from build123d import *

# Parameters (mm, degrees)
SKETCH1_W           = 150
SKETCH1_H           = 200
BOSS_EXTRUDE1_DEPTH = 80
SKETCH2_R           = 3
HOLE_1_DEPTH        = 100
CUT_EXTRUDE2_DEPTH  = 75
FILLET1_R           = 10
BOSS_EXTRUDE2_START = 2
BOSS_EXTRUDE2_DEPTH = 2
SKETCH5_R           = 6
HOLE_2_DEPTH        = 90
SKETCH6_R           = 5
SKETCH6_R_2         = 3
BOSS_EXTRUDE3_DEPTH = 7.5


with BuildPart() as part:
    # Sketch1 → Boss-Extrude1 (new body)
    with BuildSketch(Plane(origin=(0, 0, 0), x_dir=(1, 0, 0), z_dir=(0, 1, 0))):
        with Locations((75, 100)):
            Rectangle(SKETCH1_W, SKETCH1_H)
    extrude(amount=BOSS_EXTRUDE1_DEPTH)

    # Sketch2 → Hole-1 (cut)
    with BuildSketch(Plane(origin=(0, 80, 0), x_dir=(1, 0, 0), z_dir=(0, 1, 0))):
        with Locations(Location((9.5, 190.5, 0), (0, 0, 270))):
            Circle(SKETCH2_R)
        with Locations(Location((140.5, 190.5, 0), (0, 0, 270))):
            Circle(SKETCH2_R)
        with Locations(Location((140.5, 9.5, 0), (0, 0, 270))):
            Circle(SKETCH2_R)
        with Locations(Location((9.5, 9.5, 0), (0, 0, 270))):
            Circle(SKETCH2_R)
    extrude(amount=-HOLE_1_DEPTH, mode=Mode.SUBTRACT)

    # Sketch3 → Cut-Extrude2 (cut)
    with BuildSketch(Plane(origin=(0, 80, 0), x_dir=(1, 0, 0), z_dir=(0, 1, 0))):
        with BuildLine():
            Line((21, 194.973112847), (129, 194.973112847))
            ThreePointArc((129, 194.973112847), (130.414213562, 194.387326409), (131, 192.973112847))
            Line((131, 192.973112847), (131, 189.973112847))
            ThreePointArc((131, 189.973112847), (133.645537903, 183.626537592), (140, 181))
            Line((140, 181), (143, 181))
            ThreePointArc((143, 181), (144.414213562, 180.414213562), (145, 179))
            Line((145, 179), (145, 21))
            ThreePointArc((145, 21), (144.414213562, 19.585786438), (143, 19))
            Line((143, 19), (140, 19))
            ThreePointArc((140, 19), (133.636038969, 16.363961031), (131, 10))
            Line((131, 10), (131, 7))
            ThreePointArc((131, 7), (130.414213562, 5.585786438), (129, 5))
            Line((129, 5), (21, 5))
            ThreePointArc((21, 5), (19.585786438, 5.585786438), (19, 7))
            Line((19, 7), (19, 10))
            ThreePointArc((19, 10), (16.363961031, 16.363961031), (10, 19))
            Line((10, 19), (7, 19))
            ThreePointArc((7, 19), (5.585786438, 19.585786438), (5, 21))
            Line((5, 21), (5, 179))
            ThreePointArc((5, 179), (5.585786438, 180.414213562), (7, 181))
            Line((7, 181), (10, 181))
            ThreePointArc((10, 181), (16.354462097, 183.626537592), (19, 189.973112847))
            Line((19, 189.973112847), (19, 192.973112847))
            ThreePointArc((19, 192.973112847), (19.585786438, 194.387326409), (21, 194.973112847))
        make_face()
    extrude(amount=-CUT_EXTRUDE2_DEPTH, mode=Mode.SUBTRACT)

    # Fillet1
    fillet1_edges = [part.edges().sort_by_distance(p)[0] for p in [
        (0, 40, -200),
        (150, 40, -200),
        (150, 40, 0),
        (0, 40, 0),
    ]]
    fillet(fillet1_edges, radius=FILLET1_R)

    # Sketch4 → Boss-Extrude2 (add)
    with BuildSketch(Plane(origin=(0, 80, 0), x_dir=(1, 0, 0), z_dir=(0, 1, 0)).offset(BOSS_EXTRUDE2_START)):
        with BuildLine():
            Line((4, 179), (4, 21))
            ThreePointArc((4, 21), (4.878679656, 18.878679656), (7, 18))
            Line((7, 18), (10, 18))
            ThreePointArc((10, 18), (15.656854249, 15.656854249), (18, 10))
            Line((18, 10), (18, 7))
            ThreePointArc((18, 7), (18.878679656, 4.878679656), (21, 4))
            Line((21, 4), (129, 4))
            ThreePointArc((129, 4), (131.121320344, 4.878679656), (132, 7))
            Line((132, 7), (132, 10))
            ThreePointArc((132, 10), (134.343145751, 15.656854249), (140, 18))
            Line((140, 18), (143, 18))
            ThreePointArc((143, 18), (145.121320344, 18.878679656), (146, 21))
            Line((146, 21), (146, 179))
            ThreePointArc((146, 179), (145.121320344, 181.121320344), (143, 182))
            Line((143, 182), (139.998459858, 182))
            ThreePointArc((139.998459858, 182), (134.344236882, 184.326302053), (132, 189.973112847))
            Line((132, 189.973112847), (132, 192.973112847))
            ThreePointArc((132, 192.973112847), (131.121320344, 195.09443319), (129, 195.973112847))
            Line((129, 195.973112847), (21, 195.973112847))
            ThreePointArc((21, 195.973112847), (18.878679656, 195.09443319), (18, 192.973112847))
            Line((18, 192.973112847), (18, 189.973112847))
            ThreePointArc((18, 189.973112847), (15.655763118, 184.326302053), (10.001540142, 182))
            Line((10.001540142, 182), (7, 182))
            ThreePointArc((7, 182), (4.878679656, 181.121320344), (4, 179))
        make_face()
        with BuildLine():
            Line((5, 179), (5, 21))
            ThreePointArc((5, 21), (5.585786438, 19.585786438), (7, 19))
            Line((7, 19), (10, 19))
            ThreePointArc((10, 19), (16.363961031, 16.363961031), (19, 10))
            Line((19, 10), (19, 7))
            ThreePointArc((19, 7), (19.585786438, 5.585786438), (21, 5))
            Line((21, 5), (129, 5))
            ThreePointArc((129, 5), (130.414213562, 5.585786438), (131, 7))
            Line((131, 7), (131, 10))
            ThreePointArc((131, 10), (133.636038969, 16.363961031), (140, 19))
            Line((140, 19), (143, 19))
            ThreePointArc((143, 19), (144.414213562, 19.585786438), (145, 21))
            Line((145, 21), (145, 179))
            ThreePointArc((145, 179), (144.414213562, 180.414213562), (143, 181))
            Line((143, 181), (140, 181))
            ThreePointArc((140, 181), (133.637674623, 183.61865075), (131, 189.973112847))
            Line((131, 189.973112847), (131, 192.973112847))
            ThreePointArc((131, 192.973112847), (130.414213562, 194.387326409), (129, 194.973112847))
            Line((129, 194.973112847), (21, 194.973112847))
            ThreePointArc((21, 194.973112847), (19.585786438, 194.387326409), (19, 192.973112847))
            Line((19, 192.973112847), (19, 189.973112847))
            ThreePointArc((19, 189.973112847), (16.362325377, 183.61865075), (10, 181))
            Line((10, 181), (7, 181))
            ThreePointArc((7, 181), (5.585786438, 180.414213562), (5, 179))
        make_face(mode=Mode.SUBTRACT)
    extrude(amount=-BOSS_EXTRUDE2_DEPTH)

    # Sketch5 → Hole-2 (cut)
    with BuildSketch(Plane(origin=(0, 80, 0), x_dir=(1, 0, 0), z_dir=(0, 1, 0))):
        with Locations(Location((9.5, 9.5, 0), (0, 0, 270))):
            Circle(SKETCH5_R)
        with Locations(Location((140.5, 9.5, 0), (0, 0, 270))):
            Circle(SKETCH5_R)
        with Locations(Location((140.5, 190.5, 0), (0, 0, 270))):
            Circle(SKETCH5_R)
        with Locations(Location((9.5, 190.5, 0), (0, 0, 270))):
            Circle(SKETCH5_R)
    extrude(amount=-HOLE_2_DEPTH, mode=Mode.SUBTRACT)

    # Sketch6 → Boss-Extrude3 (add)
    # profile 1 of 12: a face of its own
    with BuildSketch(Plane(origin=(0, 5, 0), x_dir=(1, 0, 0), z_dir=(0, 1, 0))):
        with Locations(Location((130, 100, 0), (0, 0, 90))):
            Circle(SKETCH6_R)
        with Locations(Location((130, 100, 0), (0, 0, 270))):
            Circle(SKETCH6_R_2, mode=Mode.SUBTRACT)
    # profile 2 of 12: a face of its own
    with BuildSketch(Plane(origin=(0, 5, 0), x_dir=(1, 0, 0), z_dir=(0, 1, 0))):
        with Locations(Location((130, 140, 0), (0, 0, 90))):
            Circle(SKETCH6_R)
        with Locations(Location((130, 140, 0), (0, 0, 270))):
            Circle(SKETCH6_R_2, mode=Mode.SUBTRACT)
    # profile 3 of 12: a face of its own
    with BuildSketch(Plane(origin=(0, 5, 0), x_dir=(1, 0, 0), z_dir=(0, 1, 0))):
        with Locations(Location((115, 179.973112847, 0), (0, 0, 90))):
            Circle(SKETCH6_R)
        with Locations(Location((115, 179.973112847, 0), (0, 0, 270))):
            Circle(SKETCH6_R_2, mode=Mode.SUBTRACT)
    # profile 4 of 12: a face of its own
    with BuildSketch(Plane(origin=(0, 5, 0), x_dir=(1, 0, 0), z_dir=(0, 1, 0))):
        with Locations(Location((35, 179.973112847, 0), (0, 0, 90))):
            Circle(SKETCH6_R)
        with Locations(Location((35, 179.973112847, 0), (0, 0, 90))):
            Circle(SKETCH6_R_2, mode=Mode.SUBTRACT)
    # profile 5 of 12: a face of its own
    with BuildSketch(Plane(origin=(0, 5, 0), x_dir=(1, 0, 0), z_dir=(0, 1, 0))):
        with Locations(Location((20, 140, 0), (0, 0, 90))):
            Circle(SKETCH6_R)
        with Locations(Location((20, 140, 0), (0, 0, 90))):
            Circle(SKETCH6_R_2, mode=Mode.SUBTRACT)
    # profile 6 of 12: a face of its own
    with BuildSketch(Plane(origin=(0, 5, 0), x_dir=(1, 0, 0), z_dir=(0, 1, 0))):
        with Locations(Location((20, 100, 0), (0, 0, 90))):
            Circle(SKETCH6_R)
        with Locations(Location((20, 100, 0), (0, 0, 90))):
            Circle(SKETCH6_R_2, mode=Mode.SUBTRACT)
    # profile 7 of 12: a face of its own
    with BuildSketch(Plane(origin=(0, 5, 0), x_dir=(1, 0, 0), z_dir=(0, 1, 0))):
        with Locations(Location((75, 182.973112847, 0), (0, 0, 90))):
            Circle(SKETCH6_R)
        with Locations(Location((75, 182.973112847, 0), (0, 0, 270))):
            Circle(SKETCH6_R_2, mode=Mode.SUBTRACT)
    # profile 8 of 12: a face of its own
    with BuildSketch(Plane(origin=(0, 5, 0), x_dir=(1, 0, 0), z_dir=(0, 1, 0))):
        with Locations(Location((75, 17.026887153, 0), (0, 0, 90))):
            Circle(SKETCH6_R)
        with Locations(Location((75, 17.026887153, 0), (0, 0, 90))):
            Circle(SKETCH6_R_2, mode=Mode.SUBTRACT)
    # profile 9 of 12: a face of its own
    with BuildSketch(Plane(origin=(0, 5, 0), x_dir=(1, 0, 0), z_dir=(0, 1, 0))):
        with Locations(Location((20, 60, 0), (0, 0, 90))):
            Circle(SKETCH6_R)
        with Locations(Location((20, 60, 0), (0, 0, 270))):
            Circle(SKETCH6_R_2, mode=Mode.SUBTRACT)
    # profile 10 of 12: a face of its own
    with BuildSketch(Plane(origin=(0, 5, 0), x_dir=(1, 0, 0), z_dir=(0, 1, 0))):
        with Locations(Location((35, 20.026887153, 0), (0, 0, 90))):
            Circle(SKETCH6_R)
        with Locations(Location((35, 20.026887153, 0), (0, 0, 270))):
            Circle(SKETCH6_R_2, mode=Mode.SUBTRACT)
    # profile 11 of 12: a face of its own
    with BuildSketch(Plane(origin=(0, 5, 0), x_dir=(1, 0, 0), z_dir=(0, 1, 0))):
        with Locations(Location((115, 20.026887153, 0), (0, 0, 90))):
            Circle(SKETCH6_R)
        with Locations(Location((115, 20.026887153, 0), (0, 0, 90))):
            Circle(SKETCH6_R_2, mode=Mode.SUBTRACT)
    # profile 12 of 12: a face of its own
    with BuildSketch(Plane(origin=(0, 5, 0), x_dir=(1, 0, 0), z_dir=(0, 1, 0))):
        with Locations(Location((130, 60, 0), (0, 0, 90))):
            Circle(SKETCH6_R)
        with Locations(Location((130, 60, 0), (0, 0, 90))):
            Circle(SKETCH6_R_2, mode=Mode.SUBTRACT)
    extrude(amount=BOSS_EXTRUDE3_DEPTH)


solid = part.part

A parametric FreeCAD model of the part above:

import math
import FreeCAD as App
import Part
import Sketcher
Q = App.Units.Quantity


def edges_at(feature, points):
    """Names of the edges that pass closest to the given points."""
    edges = feature.Shape.Edges
    near = lambda p: min(range(len(edges)), key=lambda i: edges[i].distToShape(Part.Vertex(*p))[0])
    return sorted({f"Edge{near(p) + 1}" for p in points})


def add_polygon(sketch, points):
    """Adds a closed chain of lines whose ends are joined by coincident constraints."""
    first, n = sketch.GeometryCount, len(points)
    for a, b in zip(points, points[1:] + points[:1]):
        sketch.addGeometry(Part.LineSegment(App.Vector(*a, 0), App.Vector(*b, 0)), False)
    for i in range(n):
        sketch.addConstraint(Sketcher.Constraint("Coincident", first + i, 2, first + (i + 1) % n, 1))

doc = App.newDocument("Part")
body = doc.addObject("PartDesign::Body", "Body")

# Sketch on XZ plane
sketch1 = body.newObject("Sketcher::SketchObject", "Sketch")
sketch1.AttachmentSupport = (doc.getObject("XZ_Plane"), [""])
sketch1.MapMode = "FlatFace"
add_polygon(sketch1, [(0, -200), (0, 0), (150, 0), (150, -200)])  # lines 0-3
sketch1.addConstraint(Sketcher.Constraint("Vertical", 0))
sketch1.addConstraint(Sketcher.Constraint("Horizontal", 1))
sketch1.addConstraint(Sketcher.Constraint("Vertical", 2))
sketch1.addConstraint(Sketcher.Constraint("Horizontal", 3))
sketch1.addConstraint(Sketcher.Constraint("Coincident", 0, 2, -1, 1))
sketch1.addConstraint(Sketcher.Constraint("DistanceX", 1, 1, 1, 2, Q("150 mm")))
sketch1.addConstraint(Sketcher.Constraint("DistanceY", 0, 1, 0, 2, Q("200 mm")))
pad1 = body.newObject("PartDesign::Pad", "Pad")
pad1.Profile = sketch1
pad1.Length = 80
pad1.Reversed = True

# Sketch on XZ plane
sketch2 = body.newObject("Sketcher::SketchObject", "Sketch001")
sketch2.AttachmentSupport = (doc.getObject("XZ_Plane"), [""])
sketch2.MapMode = "FlatFace"
sketch2.AttachmentOffset = App.Placement(App.Vector(0, 0, -80), App.Rotation())
sketch2.addGeometry(Part.Circle(App.Vector(9.5, -190.5, 0), App.Vector(0, 0, 1), 3), False)
sketch2.addGeometry(Part.Circle(App.Vector(140.5, -190.5, 0), App.Vector(0, 0, 1), 3), False)
sketch2.addGeometry(Part.Circle(App.Vector(140.5, -9.5, 0), App.Vector(0, 0, 1), 3), False)
sketch2.addGeometry(Part.Circle(App.Vector(9.5, -9.5, 0), App.Vector(0, 0, 1), 3), False)
sketch2.addConstraint(Sketcher.Constraint("Equal", 0, 1))
sketch2.addConstraint(Sketcher.Constraint("Equal", 1, 2))
sketch2.addConstraint(Sketcher.Constraint("Equal", 2, 3))
sketch2.addConstraint(Sketcher.Constraint("Horizontal", 0, 3, 1, 3))
sketch2.addConstraint(Sketcher.Constraint("Horizontal", 2, 3, 3, 3))
sketch2.addConstraint(Sketcher.Constraint("Vertical", 1, 3, 2, 3))
sketch2.addConstraint(Sketcher.Constraint("Vertical", 0, 3, 3, 3))
sketch2.addConstraint(Sketcher.Constraint("Diameter", 0, Q("6 mm")))
sketch2.addConstraint(Sketcher.Constraint("DistanceX", 0, 3, 1, 3, Q("131 mm")))
sketch2.addConstraint(Sketcher.Constraint("DistanceY", 1, 3, 2, 3, Q("181 mm")))
sketch2.addConstraint(Sketcher.Constraint("DistanceX", -1, 1, 0, 3, Q("9.5 mm")))
sketch2.addConstraint(Sketcher.Constraint("DistanceY", 0, 3, -1, 1, Q("190.5 mm")))
pocket1 = body.newObject("PartDesign::Pocket", "Pocket")
pocket1.Profile = sketch2
pocket1.Length = 100
pocket1.Reversed = True

# Sketch on XZ plane
sketch3 = body.newObject("Sketcher::SketchObject", "Sketch002")
sketch3.AttachmentSupport = (doc.getObject("XZ_Plane"), [""])
sketch3.MapMode = "FlatFace"
sketch3.AttachmentOffset = App.Placement(App.Vector(0, 0, -80), App.Rotation())
sketch3.addGeometry(Part.LineSegment(App.Vector(129, -194.973113, 0), App.Vector(21, -194.973113, 0)), False)
sketch3.addGeometry(Part.ArcOfCircle(Part.Circle(App.Vector(21, -192.973113, 0), App.Vector(0, 0, 1), 2), math.radians(-180), math.radians(-90)), False)
sketch3.addGeometry(Part.LineSegment(App.Vector(19, -192.973113, 0), App.Vector(19, -189.973113, 0)), False)
sketch3.addGeometry(Part.ArcOfCircle(Part.Circle(App.Vector(10, -190.00004, 0), App.Vector(0, 0, 1), 9.00004), math.radians(0.171425), math.radians(90)), False)
sketch3.addGeometry(Part.LineSegment(App.Vector(10, -181, 0), App.Vector(7, -181, 0)), False)
sketch3.addGeometry(Part.ArcOfCircle(Part.Circle(App.Vector(7, -179, 0), App.Vector(0, 0, 1), 2), math.radians(-180), math.radians(-90)), False)
sketch3.addGeometry(Part.LineSegment(App.Vector(5, -179, 0), App.Vector(5, -21, 0)), False)
sketch3.addGeometry(Part.ArcOfCircle(Part.Circle(App.Vector(7, -21, 0), App.Vector(0, 0, 1), 2), math.radians(90), math.radians(180)), False)
sketch3.addGeometry(Part.LineSegment(App.Vector(7, -19, 0), App.Vector(10, -19, 0)), False)
sketch3.addGeometry(Part.ArcOfCircle(Part.Circle(App.Vector(10, -10, 0), App.Vector(0, 0, 1), 9), math.radians(-90), math.radians(0)), False)
sketch3.addGeometry(Part.LineSegment(App.Vector(19, -10, 0), App.Vector(19, -7, 0)), False)
sketch3.addGeometry(Part.ArcOfCircle(Part.Circle(App.Vector(21, -7, 0), App.Vector(0, 0, 1), 2), math.radians(90), math.radians(180)), False)
sketch3.addGeometry(Part.LineSegment(App.Vector(21, -5, 0), App.Vector(129, -5, 0)), False)
sketch3.addGeometry(Part.ArcOfCircle(Part.Circle(App.Vector(129, -7, 0), App.Vector(0, 0, 1), 2), math.radians(0), math.radians(90)), False)
sketch3.addGeometry(Part.LineSegment(App.Vector(131, -7, 0), App.Vector(131, -10, 0)), False)
sketch3.addGeometry(Part.ArcOfCircle(Part.Circle(App.Vector(140, -10, 0), App.Vector(0, 0, 1), 9), math.radians(180), math.radians(270)), False)
sketch3.addGeometry(Part.LineSegment(App.Vector(140, -19, 0), App.Vector(143, -19, 0)), False)
sketch3.addGeometry(Part.ArcOfCircle(Part.Circle(App.Vector(143, -21, 0), App.Vector(0, 0, 1), 2), math.radians(0), math.radians(90)), False)
sketch3.addGeometry(Part.LineSegment(App.Vector(145, -21, 0), App.Vector(145, -179, 0)), False)
sketch3.addGeometry(Part.ArcOfCircle(Part.Circle(App.Vector(143, -179, 0), App.Vector(0, 0, 1), 2), math.radians(-90), math.radians(0)), False)
sketch3.addGeometry(Part.LineSegment(App.Vector(143, -181, 0), App.Vector(140, -181, 0)), False)
sketch3.addGeometry(Part.ArcOfCircle(Part.Circle(App.Vector(140, -190.00004, 0), App.Vector(0, 0, 1), 9.00004), math.radians(90), math.radians(179.828575)), False)
sketch3.addGeometry(Part.LineSegment(App.Vector(131, -189.973113, 0), App.Vector(131, -192.973113, 0)), False)
sketch3.addGeometry(Part.ArcOfCircle(Part.Circle(App.Vector(129, -192.973113, 0), App.Vector(0, 0, 1), 2), math.radians(-90), math.radians(0)), False)
sketch3.addConstraint(Sketcher.Constraint("Tangent", 0, 2, 1, 2))
sketch3.addConstraint(Sketcher.Constraint("Tangent", 1, 1, 2, 1))
sketch3.addConstraint(Sketcher.Constraint("Coincident", 2, 2, 3, 1))
sketch3.addConstraint(Sketcher.Constraint("Tangent", 3, 2, 4, 1))
sketch3.addConstraint(Sketcher.Constraint("Tangent", 4, 2, 5, 2))
sketch3.addConstraint(Sketcher.Constraint("Tangent", 5, 1, 6, 1))
sketch3.addConstraint(Sketcher.Constraint("Tangent", 6, 2, 7, 2))
sketch3.addConstraint(Sketcher.Constraint("Tangent", 7, 1, 8, 1))
sketch3.addConstraint(Sketcher.Constraint("Tangent", 8, 2, 9, 1))
sketch3.addConstraint(Sketcher.Constraint("Tangent", 9, 2, 10, 1))
sketch3.addConstraint(Sketcher.Constraint("Tangent", 10, 2, 11, 2))
sketch3.addConstraint(Sketcher.Constraint("Tangent", 11, 1, 12, 1))
sketch3.addConstraint(Sketcher.Constraint("Tangent", 12, 2, 13, 2))
sketch3.addConstraint(Sketcher.Constraint("Tangent", 13, 1, 14, 1))
sketch3.addConstraint(Sketcher.Constraint("Tangent", 14, 2, 15, 1))
sketch3.addConstraint(Sketcher.Constraint("Tangent", 15, 2, 16, 1))
sketch3.addConstraint(Sketcher.Constraint("Tangent", 16, 2, 17, 2))
sketch3.addConstraint(Sketcher.Constraint("Tangent", 17, 1, 18, 1))
sketch3.addConstraint(Sketcher.Constraint("Tangent", 18, 2, 19, 2))
sketch3.addConstraint(Sketcher.Constraint("Tangent", 19, 1, 20, 1))
sketch3.addConstraint(Sketcher.Constraint("Tangent", 20, 2, 21, 1))
sketch3.addConstraint(Sketcher.Constraint("Coincident", 21, 2, 22, 1))
sketch3.addConstraint(Sketcher.Constraint("Tangent", 22, 2, 23, 2))
sketch3.addConstraint(Sketcher.Constraint("Tangent", 23, 1, 0, 1))
sketch3.addConstraint(Sketcher.Constraint("Horizontal", 0))
sketch3.addConstraint(Sketcher.Constraint("Vertical", 2))
sketch3.addConstraint(Sketcher.Constraint("Horizontal", 4))
sketch3.addConstraint(Sketcher.Constraint("Vertical", 6))
sketch3.addConstraint(Sketcher.Constraint("Horizontal", 8))
sketch3.addConstraint(Sketcher.Constraint("Vertical", 10))
sketch3.addConstraint(Sketcher.Constraint("Horizontal", 12))
sketch3.addConstraint(Sketcher.Constraint("Vertical", 14))
sketch3.addConstraint(Sketcher.Constraint("Horizontal", 16))
sketch3.addConstraint(Sketcher.Constraint("Vertical", 18))
sketch3.addConstraint(Sketcher.Constraint("Horizontal", 20))
sketch3.addConstraint(Sketcher.Constraint("Vertical", 22))
sketch3.addConstraint(Sketcher.Constraint("Equal", 1, 5))
sketch3.addConstraint(Sketcher.Constraint("Equal", 5, 7))
sketch3.addConstraint(Sketcher.Constraint("Equal", 7, 11))
sketch3.addConstraint(Sketcher.Constraint("Equal", 11, 13))
sketch3.addConstraint(Sketcher.Constraint("Equal", 9, 15))
sketch3.addConstraint(Sketcher.Constraint("Equal", 13, 17))
sketch3.addConstraint(Sketcher.Constraint("Equal", 17, 19))
sketch3.addConstraint(Sketcher.Constraint("Equal", 3, 21))
sketch3.addConstraint(Sketcher.Constraint("Equal", 19, 23))
sketch3.addConstraint(Sketcher.Constraint("Horizontal", 9, 3, 15, 3))
sketch3.addConstraint(Sketcher.Constraint("Horizontal", 5, 3, 19, 3))
sketch3.addConstraint(Sketcher.Constraint("Horizontal", 2, 2, 21, 2))
sketch3.addConstraint(Sketcher.Constraint("Vertical", 3, 3, 9, 3))
sketch3.addConstraint(Sketcher.Constraint("Vertical", 1, 3, 11, 3))
sketch3.addConstraint(Sketcher.Constraint("Vertical", 15, 3, 21, 3))
sketch3.addConstraint(Sketcher.Constraint("Equal", 8, 16))
sketch3.addConstraint(Sketcher.Constraint("Equal", 20, 2))
sketch3.addConstraint(Sketcher.Constraint("Equal", 2, 10))
sketch3.addConstraint(Sketcher.Constraint("Radius", 1, Q("2 mm")))
sketch3.addConstraint(Sketcher.Constraint("Radius", 9, Q("9 mm")))
sketch3.addConstraint(Sketcher.Constraint("DistanceX", 0, 2, 0, 1, Q("108 mm")))
sketch3.addConstraint(Sketcher.Constraint("DistanceX", 4, 2, 4, 1, Q("3 mm")))
sketch3.addConstraint(Sketcher.Constraint("DistanceY", 6, 1, 6, 2, Q("158 mm")))
sketch3.addConstraint(Sketcher.Constraint("DistanceX", -1, 1, 1, 3, Q("21 mm")))
sketch3.addConstraint(Sketcher.Constraint("DistanceY", 5, 3, -1, 1, Q("179 mm")))
sketch3.addConstraint(Sketcher.Constraint("DistanceY", 1, 3, -1, 1, Q("192.973113 mm")))
pocket2 = body.newObject("PartDesign::Pocket", "Pocket001")
pocket2.Profile = sketch3
pocket2.Length = 75
pocket2.Reversed = True
doc.recompute()

fillet = body.newObject("PartDesign::Fillet", "Fillet")
fillet.Base = (pocket2, edges_at(pocket2, [
    (0, 40, -200),
    (150, 40, -200),
    (150, 40, 0),
    (0, 40, 0),
]))
fillet.Radius = 10

# Sketch on XZ plane
sketch4 = body.newObject("Sketcher::SketchObject", "Sketch003")
sketch4.AttachmentSupport = (doc.getObject("XZ_Plane"), [""])
sketch4.MapMode = "FlatFace"
sketch4.AttachmentOffset = App.Placement(App.Vector(0, 0, -82), App.Rotation())
sketch4.addGeometry(Part.LineSegment(App.Vector(4, -179, 0), App.Vector(4, -21, 0)), False)
sketch4.addGeometry(Part.ArcOfCircle(Part.Circle(App.Vector(7, -21, 0), App.Vector(0, 0, 1), 3), math.radians(90), math.radians(180)), False)
sketch4.addGeometry(Part.LineSegment(App.Vector(7, -18, 0), App.Vector(10, -18, 0)), False)
sketch4.addGeometry(Part.ArcOfCircle(Part.Circle(App.Vector(10, -10, 0), App.Vector(0, 0, 1), 8), math.radians(-90), math.radians(0)), False)
sketch4.addGeometry(Part.LineSegment(App.Vector(18, -10, 0), App.Vector(18, -7, 0)), False)
sketch4.addGeometry(Part.ArcOfCircle(Part.Circle(App.Vector(21, -7, 0), App.Vector(0, 0, 1), 3), math.radians(90), math.radians(180)), False)
sketch4.addGeometry(Part.LineSegment(App.Vector(21, -4, 0), App.Vector(129, -4, 0)), False)
sketch4.addGeometry(Part.ArcOfCircle(Part.Circle(App.Vector(129, -7, 0), App.Vector(0, 0, 1), 3), math.radians(0), math.radians(90)), False)
sketch4.addGeometry(Part.LineSegment(App.Vector(132, -7, 0), App.Vector(132, -10, 0)), False)
sketch4.addGeometry(Part.ArcOfCircle(Part.Circle(App.Vector(140, -10, 0), App.Vector(0, 0, 1), 8), math.radians(-180), math.radians(-90)), False)
sketch4.addGeometry(Part.LineSegment(App.Vector(140, -18, 0), App.Vector(143, -18, 0)), False)
sketch4.addGeometry(Part.ArcOfCircle(Part.Circle(App.Vector(143, -21, 0), App.Vector(0, 0, 1), 3), math.radians(0), math.radians(90)), False)
sketch4.addGeometry(Part.LineSegment(App.Vector(146, -21, 0), App.Vector(146, -179, 0)), False)
sketch4.addGeometry(Part.ArcOfCircle(Part.Circle(App.Vector(143, -179, 0), App.Vector(0, 0, 1), 3), math.radians(-90), math.radians(0)), False)
sketch4.addGeometry(Part.LineSegment(App.Vector(143, -182, 0), App.Vector(139.99846, -182, 0)), False)
sketch4.addGeometry(Part.ArcOfCircle(Part.Circle(App.Vector(139.973153, -189.973113, 0), App.Vector(0, 0, 1), 7.973153), math.radians(89.818142), math.radians(180)), False)
sketch4.addGeometry(Part.LineSegment(App.Vector(132, -189.973113, 0), App.Vector(132, -192.973113, 0)), False)
sketch4.addGeometry(Part.ArcOfCircle(Part.Circle(App.Vector(129, -192.973113, 0), App.Vector(0, 0, 1), 3), math.radians(-90), math.radians(0)), False)
sketch4.addGeometry(Part.LineSegment(App.Vector(129, -195.973113, 0), App.Vector(21, -195.973113, 0)), False)
sketch4.addGeometry(Part.ArcOfCircle(Part.Circle(App.Vector(21, -192.973113, 0), App.Vector(0, 0, 1), 3), math.radians(180), math.radians(270)), False)
sketch4.addGeometry(Part.LineSegment(App.Vector(18, -192.973113, 0), App.Vector(18, -189.973113, 0)), False)
sketch4.addGeometry(Part.ArcOfCircle(Part.Circle(App.Vector(10.026847, -189.973113, 0), App.Vector(0, 0, 1), 7.973153), math.radians(0), math.radians(90.181858)), False)
sketch4.addGeometry(Part.LineSegment(App.Vector(10.00154, -182, 0), App.Vector(7, -182, 0)), False)
sketch4.addGeometry(Part.ArcOfCircle(Part.Circle(App.Vector(7, -179, 0), App.Vector(0, 0, 1), 3), math.radians(180), math.radians(270)), False)
sketch4.addGeometry(Part.LineSegment(App.Vector(5, -21, 0), App.Vector(5, -179, 0)), False)
sketch4.addGeometry(Part.ArcOfCircle(Part.Circle(App.Vector(7, -179, 0), App.Vector(0, 0, 1), 2), math.radians(-180), math.radians(-90)), False)
sketch4.addGeometry(Part.LineSegment(App.Vector(7, -181, 0), App.Vector(10, -181, 0)), False)
sketch4.addGeometry(Part.ArcOfCircle(Part.Circle(App.Vector(10.026847, -189.973113, 0), App.Vector(0, 0, 1), 8.973153), math.radians(0), math.radians(90.171425)), False)
sketch4.addGeometry(Part.LineSegment(App.Vector(19, -189.973113, 0), App.Vector(19, -192.973113, 0)), False)
sketch4.addGeometry(Part.ArcOfCircle(Part.Circle(App.Vector(21, -192.973113, 0), App.Vector(0, 0, 1), 2), math.radians(-180), math.radians(-90)), False)
sketch4.addGeometry(Part.LineSegment(App.Vector(21, -194.973113, 0), App.Vector(129, -194.973113, 0)), False)
sketch4.addGeometry(Part.ArcOfCircle(Part.Circle(App.Vector(129, -192.973113, 0), App.Vector(0, 0, 1), 2), math.radians(-90), math.radians(0)), False)
sketch4.addGeometry(Part.LineSegment(App.Vector(131, -192.973113, 0), App.Vector(131, -189.973113, 0)), False)
sketch4.addGeometry(Part.ArcOfCircle(Part.Circle(App.Vector(139.973153, -189.973113, 0), App.Vector(0, 0, 1), 8.973153), math.radians(89.828575), math.radians(180)), False)
sketch4.addGeometry(Part.LineSegment(App.Vector(140, -181, 0), App.Vector(143, -181, 0)), False)
sketch4.addGeometry(Part.ArcOfCircle(Part.Circle(App.Vector(143, -179, 0), App.Vector(0, 0, 1), 2), math.radians(-90), math.radians(0)), False)
sketch4.addGeometry(Part.LineSegment(App.Vector(145, -179, 0), App.Vector(145, -21, 0)), False)
sketch4.addGeometry(Part.ArcOfCircle(Part.Circle(App.Vector(143, -21, 0), App.Vector(0, 0, 1), 2), math.radians(0), math.radians(90)), False)
sketch4.addGeometry(Part.LineSegment(App.Vector(143, -19, 0), App.Vector(140, -19, 0)), False)
sketch4.addGeometry(Part.ArcOfCircle(Part.Circle(App.Vector(140, -10, 0), App.Vector(0, 0, 1), 9), math.radians(180), math.radians(270)), False)
sketch4.addGeometry(Part.LineSegment(App.Vector(131, -10, 0), App.Vector(131, -7, 0)), False)
sketch4.addGeometry(Part.ArcOfCircle(Part.Circle(App.Vector(129, -7, 0), App.Vector(0, 0, 1), 2), math.radians(0), math.radians(90)), False)
sketch4.addGeometry(Part.LineSegment(App.Vector(129, -5, 0), App.Vector(21, -5, 0)), False)
sketch4.addGeometry(Part.ArcOfCircle(Part.Circle(App.Vector(21, -7, 0), App.Vector(0, 0, 1), 2), math.radians(90), math.radians(180)), False)
sketch4.addGeometry(Part.LineSegment(App.Vector(19, -7, 0), App.Vector(19, -10, 0)), False)
sketch4.addGeometry(Part.ArcOfCircle(Part.Circle(App.Vector(10, -10, 0), App.Vector(0, 0, 1), 9), math.radians(-90), math.radians(0)), False)
sketch4.addGeometry(Part.LineSegment(App.Vector(10, -19, 0), App.Vector(7, -19, 0)), False)
sketch4.addGeometry(Part.ArcOfCircle(Part.Circle(App.Vector(7, -21, 0), App.Vector(0, 0, 1), 2), math.radians(90), math.radians(180)), False)
sketch4.addConstraint(Sketcher.Constraint("Tangent", 0, 2, 1, 2))
sketch4.addConstraint(Sketcher.Constraint("Tangent", 1, 1, 2, 1))
sketch4.addConstraint(Sketcher.Constraint("Tangent", 2, 2, 3, 1))
sketch4.addConstraint(Sketcher.Constraint("Tangent", 3, 2, 4, 1))
sketch4.addConstraint(Sketcher.Constraint("Tangent", 4, 2, 5, 2))
sketch4.addConstraint(Sketcher.Constraint("Tangent", 5, 1, 6, 1))
sketch4.addConstraint(Sketcher.Constraint("Tangent", 6, 2, 7, 2))
sketch4.addConstraint(Sketcher.Constraint("Tangent", 7, 1, 8, 1))
sketch4.addConstraint(Sketcher.Constraint("Tangent", 8, 2, 9, 1))
sketch4.addConstraint(Sketcher.Constraint("Tangent", 9, 2, 10, 1))
sketch4.addConstraint(Sketcher.Constraint("Tangent", 10, 2, 11, 2))
sketch4.addConstraint(Sketcher.Constraint("Tangent", 11, 1, 12, 1))
sketch4.addConstraint(Sketcher.Constraint("Tangent", 12, 2, 13, 2))
sketch4.addConstraint(Sketcher.Constraint("Tangent", 13, 1, 14, 1))
sketch4.addConstraint(Sketcher.Constraint("Coincident", 14, 2, 15, 1))
sketch4.addConstraint(Sketcher.Constraint("Tangent", 15, 2, 16, 1))
sketch4.addConstraint(Sketcher.Constraint("Tangent", 16, 2, 17, 2))
sketch4.addConstraint(Sketcher.Constraint("Tangent", 17, 1, 18, 1))
sketch4.addConstraint(Sketcher.Constraint("Tangent", 18, 2, 19, 2))
sketch4.addConstraint(Sketcher.Constraint("Tangent", 19, 1, 20, 1))
sketch4.addConstraint(Sketcher.Constraint("Tangent", 20, 2, 21, 1))
sketch4.addConstraint(Sketcher.Constraint("Coincident", 21, 2, 22, 1))
sketch4.addConstraint(Sketcher.Constraint("Tangent", 22, 2, 23, 2))
sketch4.addConstraint(Sketcher.Constraint("Tangent", 23, 1, 0, 1))
sketch4.addConstraint(Sketcher.Constraint("Tangent", 24, 2, 25, 1))
sketch4.addConstraint(Sketcher.Constraint("Tangent", 25, 2, 26, 1))
sketch4.addConstraint(Sketcher.Constraint("Coincident", 26, 2, 27, 2))
sketch4.addConstraint(Sketcher.Constraint("Tangent", 27, 1, 28, 1))
sketch4.addConstraint(Sketcher.Constraint("Tangent", 28, 2, 29, 1))
sketch4.addConstraint(Sketcher.Constraint("Tangent", 29, 2, 30, 1))
sketch4.addConstraint(Sketcher.Constraint("Tangent", 30, 2, 31, 1))
sketch4.addConstraint(Sketcher.Constraint("Tangent", 31, 2, 32, 1))
sketch4.addConstraint(Sketcher.Constraint("Tangent", 32, 2, 33, 2))
sketch4.addConstraint(Sketcher.Constraint("Coincident", 33, 1, 34, 1))
sketch4.addConstraint(Sketcher.Constraint("Tangent", 34, 2, 35, 1))
sketch4.addConstraint(Sketcher.Constraint("Tangent", 35, 2, 36, 1))
sketch4.addConstraint(Sketcher.Constraint("Tangent", 36, 2, 37, 1))
sketch4.addConstraint(Sketcher.Constraint("Tangent", 37, 2, 38, 1))
sketch4.addConstraint(Sketcher.Constraint("Tangent", 38, 2, 39, 2))
sketch4.addConstraint(Sketcher.Constraint("Tangent", 39, 1, 40, 1))
sketch4.addConstraint(Sketcher.Constraint("Tangent", 40, 2, 41, 1))
sketch4.addConstraint(Sketcher.Constraint("Tangent", 41, 2, 42, 1))
sketch4.addConstraint(Sketcher.Constraint("Tangent", 42, 2, 43, 1))
sketch4.addConstraint(Sketcher.Constraint("Tangent", 43, 2, 44, 1))
sketch4.addConstraint(Sketcher.Constraint("Tangent", 44, 2, 45, 2))
sketch4.addConstraint(Sketcher.Constraint("Tangent", 45, 1, 46, 1))
sketch4.addConstraint(Sketcher.Constraint("Tangent", 46, 2, 47, 1))
sketch4.addConstraint(Sketcher.Constraint("Tangent", 47, 2, 24, 1))
sketch4.addConstraint(Sketcher.Constraint("Vertical", 0))
sketch4.addConstraint(Sketcher.Constraint("Horizontal", 2))
sketch4.addConstraint(Sketcher.Constraint("Vertical", 4))
sketch4.addConstraint(Sketcher.Constraint("Horizontal", 6))
sketch4.addConstraint(Sketcher.Constraint("Vertical", 8))
sketch4.addConstraint(Sketcher.Constraint("Horizontal", 10))
sketch4.addConstraint(Sketcher.Constraint("Vertical", 12))
sketch4.addConstraint(Sketcher.Constraint("Horizontal", 14))
sketch4.addConstraint(Sketcher.Constraint("Vertical", 16))
sketch4.addConstraint(Sketcher.Constraint("Horizontal", 18))
sketch4.addConstraint(Sketcher.Constraint("Vertical", 20))
sketch4.addConstraint(Sketcher.Constraint("Horizontal", 22))
sketch4.addConstraint(Sketcher.Constraint("Vertical", 24))
sketch4.addConstraint(Sketcher.Constraint("Horizontal", 26))
sketch4.addConstraint(Sketcher.Constraint("Vertical", 28))
sketch4.addConstraint(Sketcher.Constraint("Horizontal", 30))
sketch4.addConstraint(Sketcher.Constraint("Vertical", 32))
sketch4.addConstraint(Sketcher.Constraint("Horizontal", 34))
sketch4.addConstraint(Sketcher.Constraint("Vertical", 36))
sketch4.addConstraint(Sketcher.Constraint("Horizontal", 38))
sketch4.addConstraint(Sketcher.Constraint("Vertical", 40))
sketch4.addConstraint(Sketcher.Constraint("Horizontal", 42))
sketch4.addConstraint(Sketcher.Constraint("Vertical", 44))
sketch4.addConstraint(Sketcher.Constraint("Horizontal", 46))
sketch4.addConstraint(Sketcher.Constraint("Coincident", 25, 3, 23, 3))
sketch4.addConstraint(Sketcher.Constraint("Coincident", 27, 3, 21, 3))
sketch4.addConstraint(Sketcher.Constraint("Coincident", 29, 3, 19, 3))
sketch4.addConstraint(Sketcher.Constraint("Coincident", 31, 3, 17, 3))
sketch4.addConstraint(Sketcher.Constraint("Coincident", 33, 3, 15, 3))
sketch4.addConstraint(Sketcher.Constraint("Coincident", 35, 3, 13, 3))
sketch4.addConstraint(Sketcher.Constraint("Coincident", 37, 3, 11, 3))
sketch4.addConstraint(Sketcher.Constraint("Coincident", 39, 3, 9, 3))
sketch4.addConstraint(Sketcher.Constraint("Coincident", 41, 3, 7, 3))
sketch4.addConstraint(Sketcher.Constraint("Coincident", 43, 3, 5, 3))
sketch4.addConstraint(Sketcher.Constraint("Coincident", 45, 3, 3, 3))
sketch4.addConstraint(Sketcher.Constraint("Coincident", 47, 3, 1, 3))
sketch4.addConstraint(Sketcher.Constraint("Equal", 1, 5))
sketch4.addConstraint(Sketcher.Constraint("Equal", 5, 7))
sketch4.addConstraint(Sketcher.Constraint("Equal", 3, 9))
sketch4.addConstraint(Sketcher.Constraint("Equal", 7, 11))
sketch4.addConstraint(Sketcher.Constraint("Equal", 11, 13))
sketch4.addConstraint(Sketcher.Constraint("Equal", 13, 17))
sketch4.addConstraint(Sketcher.Constraint("Equal", 17, 19))
sketch4.addConstraint(Sketcher.Constraint("Equal", 15, 21))
sketch4.addConstraint(Sketcher.Constraint("Equal", 19, 23))
sketch4.addConstraint(Sketcher.Constraint("Equal", 25, 29))
sketch4.addConstraint(Sketcher.Constraint("Horizontal", 3, 3, 9, 3))
sketch4.addConstraint(Sketcher.Constraint("Horizontal", 15, 3, 21, 3))
sketch4.addConstraint(Sketcher.Constraint("Horizontal", 13, 3, 23, 3))
sketch4.addConstraint(Sketcher.Constraint("Vertical", 7, 3, 17, 3))
sketch4.addConstraint(Sketcher.Constraint("Vertical", 5, 3, 19, 3))
sketch4.addConstraint(Sketcher.Constraint("Vertical", 2, 2, 26, 2))
sketch4.addConstraint(Sketcher.Constraint("Equal", 2, 10))
sketch4.addConstraint(Sketcher.Constraint("Equal", 46, 4))
sketch4.addConstraint(Sketcher.Constraint("Equal", 8, 16))
sketch4.addConstraint(Sketcher.Constraint("Radius", 1, Q("3 mm")))
sketch4.addConstraint(Sketcher.Constraint("Radius", 3, Q("8 mm")))
sketch4.addConstraint(Sketcher.Constraint("Radius", 25, Q("2 mm")))
sketch4.addConstraint(Sketcher.Constraint("DistanceX", 2, 1, 2, 2, Q("3 mm")))
sketch4.addConstraint(Sketcher.Constraint("DistanceX", 6, 1, 6, 2, Q("108 mm")))
sketch4.addConstraint(Sketcher.Constraint("DistanceY", 0, 1, 0, 2, Q("158 mm")))
sketch4.addConstraint(Sketcher.Constraint("DistanceX", -1, 1, 1, 3, Q("7 mm")))
sketch4.addConstraint(Sketcher.Constraint("DistanceY", 1, 3, -1, 1, Q("21 mm")))
sketch4.addConstraint(Sketcher.Constraint("Radius", 15, Q("7.973153 mm")))
pad2 = body.newObject("PartDesign::Pad", "Pad001")
pad2.Profile = sketch4
pad2.Length = 2

# Sketch on XZ plane
sketch5 = body.newObject("Sketcher::SketchObject", "Sketch004")
sketch5.AttachmentSupport = (doc.getObject("XZ_Plane"), [""])
sketch5.MapMode = "FlatFace"
sketch5.AttachmentOffset = App.Placement(App.Vector(0, 0, -80), App.Rotation())
sketch5.addGeometry(Part.Circle(App.Vector(9.5, -9.5, 0), App.Vector(0, 0, 1), 6), False)
sketch5.addGeometry(Part.Circle(App.Vector(140.5, -9.5, 0), App.Vector(0, 0, 1), 6), False)
sketch5.addGeometry(Part.Circle(App.Vector(140.5, -190.5, 0), App.Vector(0, 0, 1), 6), False)
sketch5.addGeometry(Part.Circle(App.Vector(9.5, -190.5, 0), App.Vector(0, 0, 1), 6), False)
sketch5.addConstraint(Sketcher.Constraint("Equal", 0, 1))
sketch5.addConstraint(Sketcher.Constraint("Equal", 1, 2))
sketch5.addConstraint(Sketcher.Constraint("Equal", 2, 3))
sketch5.addConstraint(Sketcher.Constraint("Horizontal", 0, 3, 1, 3))
sketch5.addConstraint(Sketcher.Constraint("Horizontal", 2, 3, 3, 3))
sketch5.addConstraint(Sketcher.Constraint("Vertical", 1, 3, 2, 3))
sketch5.addConstraint(Sketcher.Constraint("Vertical", 0, 3, 3, 3))
sketch5.addConstraint(Sketcher.Constraint("Diameter", 0, Q("12 mm")))
sketch5.addConstraint(Sketcher.Constraint("DistanceX", 0, 3, 1, 3, Q("131 mm")))
sketch5.addConstraint(Sketcher.Constraint("DistanceY", 2, 3, 1, 3, Q("181 mm")))
sketch5.addConstraint(Sketcher.Constraint("DistanceX", -1, 1, 0, 3, Q("9.5 mm")))
sketch5.addConstraint(Sketcher.Constraint("DistanceY", 0, 3, -1, 1, Q("9.5 mm")))
pocket3 = body.newObject("PartDesign::Pocket", "Pocket002")
pocket3.Profile = sketch5
pocket3.Length = 90
pocket3.Reversed = True

# Sketch on XZ plane
sketch6 = body.newObject("Sketcher::SketchObject", "Sketch005")
sketch6.AttachmentSupport = (doc.getObject("XZ_Plane"), [""])
sketch6.MapMode = "FlatFace"
sketch6.AttachmentOffset = App.Placement(App.Vector(0, 0, -5), App.Rotation())
sketch6.addGeometry(Part.Circle(App.Vector(130, -100, 0), App.Vector(0, 0, 1), 5), False)
sketch6.addGeometry(Part.Circle(App.Vector(130, -100, 0), App.Vector(0, 0, 1), 3), False)
sketch6.addGeometry(Part.Circle(App.Vector(130, -140, 0), App.Vector(0, 0, 1), 5), False)
sketch6.addGeometry(Part.Circle(App.Vector(130, -140, 0), App.Vector(0, 0, 1), 3), False)
sketch6.addGeometry(Part.Circle(App.Vector(115, -179.973113, 0), App.Vector(0, 0, 1), 5), False)
sketch6.addGeometry(Part.Circle(App.Vector(115, -179.973113, 0), App.Vector(0, 0, 1), 3), False)
sketch6.addGeometry(Part.Circle(App.Vector(35, -179.973113, 0), App.Vector(0, 0, 1), 5), False)
sketch6.addGeometry(Part.Circle(App.Vector(35, -179.973113, 0), App.Vector(0, 0, 1), 3), False)
sketch6.addGeometry(Part.Circle(App.Vector(20, -140, 0), App.Vector(0, 0, 1), 5), False)
sketch6.addGeometry(Part.Circle(App.Vector(20, -140, 0), App.Vector(0, 0, 1), 3), False)
sketch6.addGeometry(Part.Circle(App.Vector(20, -100, 0), App.Vector(0, 0, 1), 5), False)
sketch6.addGeometry(Part.Circle(App.Vector(20, -100, 0), App.Vector(0, 0, 1), 3), False)
sketch6.addGeometry(Part.Circle(App.Vector(75, -182.973113, 0), App.Vector(0, 0, 1), 5), False)
sketch6.addGeometry(Part.Circle(App.Vector(75, -182.973113, 0), App.Vector(0, 0, 1), 3), False)
sketch6.addGeometry(Part.Circle(App.Vector(75, -17.026887, 0), App.Vector(0, 0, 1), 5), False)
sketch6.addGeometry(Part.Circle(App.Vector(75, -17.026887, 0), App.Vector(0, 0, 1), 3), False)
sketch6.addGeometry(Part.Circle(App.Vector(20, -60, 0), App.Vector(0, 0, 1), 5), False)
sketch6.addGeometry(Part.Circle(App.Vector(20, -60, 0), App.Vector(0, 0, 1), 3), False)
sketch6.addGeometry(Part.Circle(App.Vector(35, -20.026887, 0), App.Vector(0, 0, 1), 5), False)
sketch6.addGeometry(Part.Circle(App.Vector(35, -20.026887, 0), App.Vector(0, 0, 1), 3), False)
sketch6.addGeometry(Part.Circle(App.Vector(115, -20.026887, 0), App.Vector(0, 0, 1), 5), False)
sketch6.addGeometry(Part.Circle(App.Vector(115, -20.026887, 0), App.Vector(0, 0, 1), 3), False)
sketch6.addGeometry(Part.Circle(App.Vector(130, -60, 0), App.Vector(0, 0, 1), 5), False)
sketch6.addGeometry(Part.Circle(App.Vector(130, -60, 0), App.Vector(0, 0, 1), 3), False)
sketch6.addConstraint(Sketcher.Constraint("Coincident", 1, 3, 0, 3))
sketch6.addConstraint(Sketcher.Constraint("Coincident", 3, 3, 2, 3))
sketch6.addConstraint(Sketcher.Constraint("Coincident", 5, 3, 4, 3))
sketch6.addConstraint(Sketcher.Constraint("Coincident", 7, 3, 6, 3))
sketch6.addConstraint(Sketcher.Constraint("Coincident", 9, 3, 8, 3))
sketch6.addConstraint(Sketcher.Constraint("Coincident", 11, 3, 10, 3))
sketch6.addConstraint(Sketcher.Constraint("Coincident", 13, 3, 12, 3))
sketch6.addConstraint(Sketcher.Constraint("Coincident", 15, 3, 14, 3))
sketch6.addConstraint(Sketcher.Constraint("Coincident", 17, 3, 16, 3))
sketch6.addConstraint(Sketcher.Constraint("Coincident", 19, 3, 18, 3))
sketch6.addConstraint(Sketcher.Constraint("Coincident", 21, 3, 20, 3))
sketch6.addConstraint(Sketcher.Constraint("Coincident", 23, 3, 22, 3))
sketch6.addConstraint(Sketcher.Constraint("Equal", 0, 2))
sketch6.addConstraint(Sketcher.Constraint("Equal", 1, 3))
sketch6.addConstraint(Sketcher.Constraint("Equal", 2, 4))
sketch6.addConstraint(Sketcher.Constraint("Equal", 3, 5))
sketch6.addConstraint(Sketcher.Constraint("Equal", 4, 6))
sketch6.addConstraint(Sketcher.Constraint("Equal", 5, 7))
sketch6.addConstraint(Sketcher.Constraint("Equal", 6, 8))
sketch6.addConstraint(Sketcher.Constraint("Equal", 7, 9))
sketch6.addConstraint(Sketcher.Constraint("Equal", 8, 10))
sketch6.addConstraint(Sketcher.Constraint("Equal", 9, 11))
sketch6.addConstraint(Sketcher.Constraint("Equal", 10, 12))
sketch6.addConstraint(Sketcher.Constraint("Equal", 11, 13))
sketch6.addConstraint(Sketcher.Constraint("Equal", 12, 14))
sketch6.addConstraint(Sketcher.Constraint("Equal", 13, 15))
sketch6.addConstraint(Sketcher.Constraint("Equal", 14, 16))
sketch6.addConstraint(Sketcher.Constraint("Equal", 15, 17))
sketch6.addConstraint(Sketcher.Constraint("Equal", 16, 18))
sketch6.addConstraint(Sketcher.Constraint("Equal", 17, 19))
sketch6.addConstraint(Sketcher.Constraint("Equal", 18, 20))
sketch6.addConstraint(Sketcher.Constraint("Equal", 19, 21))
sketch6.addConstraint(Sketcher.Constraint("Equal", 20, 22))
sketch6.addConstraint(Sketcher.Constraint("Equal", 21, 23))
sketch6.addConstraint(Sketcher.Constraint("Horizontal", 5, 3, 6, 3))
sketch6.addConstraint(Sketcher.Constraint("Horizontal", 3, 3, 8, 3))
sketch6.addConstraint(Sketcher.Constraint("Horizontal", 1, 3, 10, 3))
sketch6.addConstraint(Sketcher.Constraint("Horizontal", 19, 3, 20, 3))
sketch6.addConstraint(Sketcher.Constraint("Horizontal", 17, 3, 22, 3))
sketch6.addConstraint(Sketcher.Constraint("Vertical", 1, 3, 2, 3))
sketch6.addConstraint(Sketcher.Constraint("Vertical", 9, 3, 10, 3))
sketch6.addConstraint(Sketcher.Constraint("Vertical", 13, 3, 14, 3))
sketch6.addConstraint(Sketcher.Constraint("Vertical", 11, 3, 16, 3))
sketch6.addConstraint(Sketcher.Constraint("Vertical", 7, 3, 18, 3))
sketch6.addConstraint(Sketcher.Constraint("Vertical", 5, 3, 20, 3))
sketch6.addConstraint(Sketcher.Constraint("Vertical", 3, 3, 22, 3))
sketch6.addConstraint(Sketcher.Constraint("Diameter", 0, Q("10 mm")))
sketch6.addConstraint(Sketcher.Constraint("Diameter", 1, Q("6 mm")))
sketch6.addConstraint(Sketcher.Constraint("DistanceX", -1, 1, 0, 3, Q("130 mm")))
sketch6.addConstraint(Sketcher.Constraint("DistanceY", 0, 3, -1, 1, Q("100 mm")))
sketch6.addConstraint(Sketcher.Constraint("DistanceY", 2, 3, -1, 1, Q("140 mm")))
sketch6.addConstraint(Sketcher.Constraint("DistanceX", -1, 1, 4, 3, Q("115 mm")))
sketch6.addConstraint(Sketcher.Constraint("DistanceX", -1, 1, 6, 3, Q("35 mm")))
sketch6.addConstraint(Sketcher.Constraint("DistanceX", -1, 1, 8, 3, Q("20 mm")))
sketch6.addConstraint(Sketcher.Constraint("DistanceX", -1, 1, 12, 3, Q("75 mm")))
sketch6.addConstraint(Sketcher.Constraint("DistanceY", 16, 3, -1, 1, Q("60 mm")))
sketch6.addConstraint(Sketcher.Constraint("DistanceY", 12, 3, 4, 3, Q("3 mm")))
sketch6.addConstraint(Sketcher.Constraint("DistanceY", 18, 3, 14, 3, Q("3 mm")))
sketch6.addConstraint(Sketcher.Constraint("DistanceY", 4, 3, -1, 1, Q("179.973113 mm")))
sketch6.addConstraint(Sketcher.Constraint("DistanceY", 14, 3, -1, 1, Q("17.026887 mm")))
pad3 = body.newObject("PartDesign::Pad", "Pad002")
pad3.Profile = sketch6
pad3.Length = 7.5
pad3.Reversed = True

doc.recompute()
